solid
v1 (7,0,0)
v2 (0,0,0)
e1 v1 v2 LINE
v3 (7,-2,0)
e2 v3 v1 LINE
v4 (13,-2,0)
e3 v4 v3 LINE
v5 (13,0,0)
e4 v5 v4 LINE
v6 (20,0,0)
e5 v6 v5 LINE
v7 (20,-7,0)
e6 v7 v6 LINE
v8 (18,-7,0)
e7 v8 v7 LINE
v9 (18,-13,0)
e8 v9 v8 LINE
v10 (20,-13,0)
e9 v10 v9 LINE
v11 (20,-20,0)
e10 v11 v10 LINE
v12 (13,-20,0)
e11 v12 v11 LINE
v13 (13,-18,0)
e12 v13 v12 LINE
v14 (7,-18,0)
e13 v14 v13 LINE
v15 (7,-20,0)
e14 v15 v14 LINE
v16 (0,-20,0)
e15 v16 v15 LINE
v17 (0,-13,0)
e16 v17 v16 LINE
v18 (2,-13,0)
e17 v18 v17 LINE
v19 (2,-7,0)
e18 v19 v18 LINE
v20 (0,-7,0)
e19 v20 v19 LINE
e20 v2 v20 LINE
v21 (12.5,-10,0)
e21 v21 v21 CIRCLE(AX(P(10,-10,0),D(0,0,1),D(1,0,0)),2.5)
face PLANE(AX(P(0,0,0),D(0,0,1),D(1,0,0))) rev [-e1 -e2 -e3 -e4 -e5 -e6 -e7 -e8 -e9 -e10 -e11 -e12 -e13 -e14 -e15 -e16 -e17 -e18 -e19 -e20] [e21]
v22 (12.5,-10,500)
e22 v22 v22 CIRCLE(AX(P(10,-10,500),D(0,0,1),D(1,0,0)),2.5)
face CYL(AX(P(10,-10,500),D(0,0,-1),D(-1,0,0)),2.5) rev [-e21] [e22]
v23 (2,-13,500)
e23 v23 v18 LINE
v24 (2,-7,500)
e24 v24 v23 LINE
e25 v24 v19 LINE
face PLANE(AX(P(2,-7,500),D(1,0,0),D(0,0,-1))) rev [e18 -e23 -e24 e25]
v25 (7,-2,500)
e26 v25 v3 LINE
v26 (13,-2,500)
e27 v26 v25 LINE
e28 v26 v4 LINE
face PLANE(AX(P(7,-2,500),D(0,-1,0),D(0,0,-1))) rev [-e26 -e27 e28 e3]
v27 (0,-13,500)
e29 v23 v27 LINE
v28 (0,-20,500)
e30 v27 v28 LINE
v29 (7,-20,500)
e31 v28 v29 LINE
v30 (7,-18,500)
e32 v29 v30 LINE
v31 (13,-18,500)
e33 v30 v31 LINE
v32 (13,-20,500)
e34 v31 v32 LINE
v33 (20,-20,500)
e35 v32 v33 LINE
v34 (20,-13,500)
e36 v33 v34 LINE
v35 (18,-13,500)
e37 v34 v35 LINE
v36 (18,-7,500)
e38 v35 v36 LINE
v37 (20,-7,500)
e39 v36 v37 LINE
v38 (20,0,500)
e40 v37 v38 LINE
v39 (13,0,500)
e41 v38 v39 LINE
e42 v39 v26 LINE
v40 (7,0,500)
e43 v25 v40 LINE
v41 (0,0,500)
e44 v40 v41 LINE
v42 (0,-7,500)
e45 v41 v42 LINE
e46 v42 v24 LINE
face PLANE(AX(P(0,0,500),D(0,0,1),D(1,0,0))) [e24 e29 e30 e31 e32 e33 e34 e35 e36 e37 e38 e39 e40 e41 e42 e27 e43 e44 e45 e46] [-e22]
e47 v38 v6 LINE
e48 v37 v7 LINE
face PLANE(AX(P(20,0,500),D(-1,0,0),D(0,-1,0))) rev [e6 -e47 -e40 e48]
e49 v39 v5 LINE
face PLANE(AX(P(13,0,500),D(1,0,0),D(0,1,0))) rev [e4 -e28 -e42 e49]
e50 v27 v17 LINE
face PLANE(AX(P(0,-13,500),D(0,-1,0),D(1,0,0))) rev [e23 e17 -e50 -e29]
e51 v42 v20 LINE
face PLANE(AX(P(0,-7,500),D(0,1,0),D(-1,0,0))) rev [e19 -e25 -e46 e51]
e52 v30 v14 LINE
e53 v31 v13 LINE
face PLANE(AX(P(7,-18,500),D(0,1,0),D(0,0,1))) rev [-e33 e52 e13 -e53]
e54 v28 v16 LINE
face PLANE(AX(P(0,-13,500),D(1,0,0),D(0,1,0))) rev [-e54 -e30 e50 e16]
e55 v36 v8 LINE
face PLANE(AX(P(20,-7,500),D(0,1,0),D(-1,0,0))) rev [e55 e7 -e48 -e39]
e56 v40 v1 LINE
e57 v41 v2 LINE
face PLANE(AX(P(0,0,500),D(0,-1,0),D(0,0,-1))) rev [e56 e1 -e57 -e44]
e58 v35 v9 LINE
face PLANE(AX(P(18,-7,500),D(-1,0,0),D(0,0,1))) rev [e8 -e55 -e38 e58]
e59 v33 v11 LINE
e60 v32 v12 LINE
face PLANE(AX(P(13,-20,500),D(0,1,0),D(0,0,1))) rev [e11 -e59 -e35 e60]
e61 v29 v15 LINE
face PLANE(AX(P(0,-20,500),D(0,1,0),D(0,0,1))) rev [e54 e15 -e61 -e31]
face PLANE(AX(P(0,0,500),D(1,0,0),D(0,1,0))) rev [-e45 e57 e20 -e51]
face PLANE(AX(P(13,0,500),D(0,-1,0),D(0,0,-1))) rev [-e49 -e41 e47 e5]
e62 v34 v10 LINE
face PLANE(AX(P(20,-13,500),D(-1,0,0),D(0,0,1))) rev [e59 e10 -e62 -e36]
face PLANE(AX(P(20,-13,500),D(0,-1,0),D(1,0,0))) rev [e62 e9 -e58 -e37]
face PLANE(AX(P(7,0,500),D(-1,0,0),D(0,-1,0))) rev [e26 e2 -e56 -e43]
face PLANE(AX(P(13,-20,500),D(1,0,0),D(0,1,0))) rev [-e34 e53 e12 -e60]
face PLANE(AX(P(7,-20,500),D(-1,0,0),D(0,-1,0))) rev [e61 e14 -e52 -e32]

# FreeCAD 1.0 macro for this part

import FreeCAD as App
import Part
import Sketcher
from FreeCAD import Vector
Q = App.Units.Quantity

doc = App.newDocument("Part")
body = doc.addObject("PartDesign::Body", "Body")

sketch1 = body.newObject("Sketcher::SketchObject", "Sketch")
sketch1.AttachmentSupport = (doc.getObject("XY_Plane"), [""])
sketch1.MapMode = "FlatFace"
sketch1.addGeometry([
    Part.LineSegment(Vector(0, -13, 0), Vector(0, -20, 0)),
    Part.LineSegment(Vector(0, -20, 0), Vector(7, -20, 0)),
    Part.LineSegment(Vector(7, -20, 0), Vector(7, -18, 0)),
    Part.LineSegment(Vector(7, -18, 0), Vector(13, -18, 0)),
    Part.LineSegment(Vector(13, -18, 0), Vector(13, -20, 0)),
    Part.LineSegment(Vector(13, -20, 0), Vector(20, -20, 0)),
    Part.LineSegment(Vector(20, -20, 0), Vector(20, -13, 0)),
    Part.LineSegment(Vector(20, -13, 0), Vector(18, -13, 0)),
    Part.LineSegment(Vector(18, -13, 0), Vector(18, -7, 0)),
    Part.LineSegment(Vector(18, -7, 0), Vector(20, -7, 0)),
    Part.LineSegment(Vector(20, -7, 0), Vector(20, 0, 0)),
    Part.LineSegment(Vector(20, 0, 0), Vector(13, 0, 0)),
    Part.LineSegment(Vector(13, 0, 0), Vector(13, -2, 0)),
    Part.LineSegment(Vector(13, -2, 0), Vector(7, -2, 0)),
    Part.LineSegment(Vector(7, -2, 0), Vector(7, 0, 0)),
    Part.LineSegment(Vector(7, 0, 0), Vector(0, 0, 0)),
    Part.LineSegment(Vector(0, 0, 0), Vector(0, -7, 0)),
    Part.LineSegment(Vector(0, -7, 0), Vector(2, -7, 0)),
    Part.LineSegment(Vector(2, -7, 0), Vector(2, -13, 0)),
    Part.LineSegment(Vector(2, -13, 0), Vector(0, -13, 0)),
    Part.Circle(Vector(10, -10, 0), Vector(0, 0, 1), 2.5),
], False)
sketch1.addConstraint([
    Sketcher.Constraint("Coincident", 0, 2, 1, 1),
    Sketcher.Constraint("Coincident", 1, 2, 2, 1),
    Sketcher.Constraint("Coincident", 2, 2, 3, 1),
    Sketcher.Constraint("Coincident", 3, 2, 4, 1),
    Sketcher.Constraint("Coincident", 4, 2, 5, 1),
    Sketcher.Constraint("Coincident", 5, 2, 6, 1),
    Sketcher.Constraint("Coincident", 6, 2, 7, 1),
    Sketcher.Constraint("Coincident", 7, 2, 8, 1),
    Sketcher.Constraint("Coincident", 8, 2, 9, 1),
    Sketcher.Constraint("Coincident", 9, 2, 10, 1),
    Sketcher.Constraint("Coincident", 10, 2, 11, 1),
    Sketcher.Constraint("Coincident", 11, 2, 12, 1),
    Sketcher.Constraint("Coincident", 12, 2, 13, 1),
    Sketcher.Constraint("Coincident", 13, 2, 14, 1),
    Sketcher.Constraint("Coincident", 14, 2, 15, 1),
    Sketcher.Constraint("Coincident", 15, 2, 16, 1),
    Sketcher.Constraint("Coincident", 16, 2, 17, 1),
    Sketcher.Constraint("Coincident", 17, 2, 18, 1),
    Sketcher.Constraint("Coincident", 18, 2, 19, 1),
    Sketcher.Constraint("Coincident", 19, 2, 0, 1),
    Sketcher.Constraint("Vertical", 0),
    Sketcher.Constraint("Horizontal", 1),
    Sketcher.Constraint("Vertical", 2),
    Sketcher.Constraint("Horizontal", 3),
    Sketcher.Constraint("Vertical", 4),
    Sketcher.Constraint("Horizontal", 5),
    Sketcher.Constraint("Vertical", 6),
    Sketcher.Constraint("Horizontal", 7),
    Sketcher.Constraint("Vertical", 8),
    Sketcher.Constraint("Horizontal", 9),
    Sketcher.Constraint("Vertical", 10),
    Sketcher.Constraint("Horizontal", 11),
    Sketcher.Constraint("Vertical", 12),
    Sketcher.Constraint("Horizontal", 13),
    Sketcher.Constraint("Vertical", 14),
    Sketcher.Constraint("Horizontal", 15),
    Sketcher.Constraint("Vertical", 16),
    Sketcher.Constraint("Horizontal", 17),
    Sketcher.Constraint("Vertical", 18),
    Sketcher.Constraint("Horizontal", 19),
    Sketcher.Constraint("Coincident", 15, 2, -1, 1),
    Sketcher.Constraint("PointOnObject", 0, 2, -2),
    Sketcher.Constraint("PointOnObject", 10, 2, -1),
    Sketcher.Constraint("Horizontal", 1, 2, 4, 2),
    Sketcher.Constraint("Horizontal", 9, 2, 16, 2),
    Sketcher.Constraint("Horizontal", 7, 2, 18, 2),
    Sketcher.Constraint("Vertical", 6, 2, 9, 2),
    Sketcher.Constraint("Vertical", 4, 2, 11, 2),
    Sketcher.Constraint("Vertical", 2, 2, 13, 2),
    Sketcher.Constraint("Equal", 1, 5),
    Sketcher.Constraint("Equal", 9, 17),
    Sketcher.Constraint("Equal", 15, 0),
    Sketcher.Constraint("Equal", 19, 2),
    Sketcher.Constraint("Equal", 13, 8),
    Sketcher.Constraint("Equal", 6, 10),
    Sketcher.Constraint("Equal", 4, 12),
    Sketcher.Constraint("Diameter", 20, Q("5 mm")),
    Sketcher.Constraint("DistanceX", 1, 1, 1, 2, Q("7 mm")),
    Sketcher.Constraint("DistanceX", 3, 1, 3, 2, Q("6 mm")),
    Sketcher.Constraint("DistanceX", 7, 2, 7, 1, Q("2 mm")),
    Sketcher.Constraint("DistanceX", -1, 1, 20, 3, Q("10 mm")),
    Sketcher.Constraint("DistanceY", 20, 3, -1, 1, Q("10 mm")),
])
pad1 = body.newObject("PartDesign::Pad", "Pad")
pad1.Profile = sketch1
pad1.Length = 500

doc.recompute()
